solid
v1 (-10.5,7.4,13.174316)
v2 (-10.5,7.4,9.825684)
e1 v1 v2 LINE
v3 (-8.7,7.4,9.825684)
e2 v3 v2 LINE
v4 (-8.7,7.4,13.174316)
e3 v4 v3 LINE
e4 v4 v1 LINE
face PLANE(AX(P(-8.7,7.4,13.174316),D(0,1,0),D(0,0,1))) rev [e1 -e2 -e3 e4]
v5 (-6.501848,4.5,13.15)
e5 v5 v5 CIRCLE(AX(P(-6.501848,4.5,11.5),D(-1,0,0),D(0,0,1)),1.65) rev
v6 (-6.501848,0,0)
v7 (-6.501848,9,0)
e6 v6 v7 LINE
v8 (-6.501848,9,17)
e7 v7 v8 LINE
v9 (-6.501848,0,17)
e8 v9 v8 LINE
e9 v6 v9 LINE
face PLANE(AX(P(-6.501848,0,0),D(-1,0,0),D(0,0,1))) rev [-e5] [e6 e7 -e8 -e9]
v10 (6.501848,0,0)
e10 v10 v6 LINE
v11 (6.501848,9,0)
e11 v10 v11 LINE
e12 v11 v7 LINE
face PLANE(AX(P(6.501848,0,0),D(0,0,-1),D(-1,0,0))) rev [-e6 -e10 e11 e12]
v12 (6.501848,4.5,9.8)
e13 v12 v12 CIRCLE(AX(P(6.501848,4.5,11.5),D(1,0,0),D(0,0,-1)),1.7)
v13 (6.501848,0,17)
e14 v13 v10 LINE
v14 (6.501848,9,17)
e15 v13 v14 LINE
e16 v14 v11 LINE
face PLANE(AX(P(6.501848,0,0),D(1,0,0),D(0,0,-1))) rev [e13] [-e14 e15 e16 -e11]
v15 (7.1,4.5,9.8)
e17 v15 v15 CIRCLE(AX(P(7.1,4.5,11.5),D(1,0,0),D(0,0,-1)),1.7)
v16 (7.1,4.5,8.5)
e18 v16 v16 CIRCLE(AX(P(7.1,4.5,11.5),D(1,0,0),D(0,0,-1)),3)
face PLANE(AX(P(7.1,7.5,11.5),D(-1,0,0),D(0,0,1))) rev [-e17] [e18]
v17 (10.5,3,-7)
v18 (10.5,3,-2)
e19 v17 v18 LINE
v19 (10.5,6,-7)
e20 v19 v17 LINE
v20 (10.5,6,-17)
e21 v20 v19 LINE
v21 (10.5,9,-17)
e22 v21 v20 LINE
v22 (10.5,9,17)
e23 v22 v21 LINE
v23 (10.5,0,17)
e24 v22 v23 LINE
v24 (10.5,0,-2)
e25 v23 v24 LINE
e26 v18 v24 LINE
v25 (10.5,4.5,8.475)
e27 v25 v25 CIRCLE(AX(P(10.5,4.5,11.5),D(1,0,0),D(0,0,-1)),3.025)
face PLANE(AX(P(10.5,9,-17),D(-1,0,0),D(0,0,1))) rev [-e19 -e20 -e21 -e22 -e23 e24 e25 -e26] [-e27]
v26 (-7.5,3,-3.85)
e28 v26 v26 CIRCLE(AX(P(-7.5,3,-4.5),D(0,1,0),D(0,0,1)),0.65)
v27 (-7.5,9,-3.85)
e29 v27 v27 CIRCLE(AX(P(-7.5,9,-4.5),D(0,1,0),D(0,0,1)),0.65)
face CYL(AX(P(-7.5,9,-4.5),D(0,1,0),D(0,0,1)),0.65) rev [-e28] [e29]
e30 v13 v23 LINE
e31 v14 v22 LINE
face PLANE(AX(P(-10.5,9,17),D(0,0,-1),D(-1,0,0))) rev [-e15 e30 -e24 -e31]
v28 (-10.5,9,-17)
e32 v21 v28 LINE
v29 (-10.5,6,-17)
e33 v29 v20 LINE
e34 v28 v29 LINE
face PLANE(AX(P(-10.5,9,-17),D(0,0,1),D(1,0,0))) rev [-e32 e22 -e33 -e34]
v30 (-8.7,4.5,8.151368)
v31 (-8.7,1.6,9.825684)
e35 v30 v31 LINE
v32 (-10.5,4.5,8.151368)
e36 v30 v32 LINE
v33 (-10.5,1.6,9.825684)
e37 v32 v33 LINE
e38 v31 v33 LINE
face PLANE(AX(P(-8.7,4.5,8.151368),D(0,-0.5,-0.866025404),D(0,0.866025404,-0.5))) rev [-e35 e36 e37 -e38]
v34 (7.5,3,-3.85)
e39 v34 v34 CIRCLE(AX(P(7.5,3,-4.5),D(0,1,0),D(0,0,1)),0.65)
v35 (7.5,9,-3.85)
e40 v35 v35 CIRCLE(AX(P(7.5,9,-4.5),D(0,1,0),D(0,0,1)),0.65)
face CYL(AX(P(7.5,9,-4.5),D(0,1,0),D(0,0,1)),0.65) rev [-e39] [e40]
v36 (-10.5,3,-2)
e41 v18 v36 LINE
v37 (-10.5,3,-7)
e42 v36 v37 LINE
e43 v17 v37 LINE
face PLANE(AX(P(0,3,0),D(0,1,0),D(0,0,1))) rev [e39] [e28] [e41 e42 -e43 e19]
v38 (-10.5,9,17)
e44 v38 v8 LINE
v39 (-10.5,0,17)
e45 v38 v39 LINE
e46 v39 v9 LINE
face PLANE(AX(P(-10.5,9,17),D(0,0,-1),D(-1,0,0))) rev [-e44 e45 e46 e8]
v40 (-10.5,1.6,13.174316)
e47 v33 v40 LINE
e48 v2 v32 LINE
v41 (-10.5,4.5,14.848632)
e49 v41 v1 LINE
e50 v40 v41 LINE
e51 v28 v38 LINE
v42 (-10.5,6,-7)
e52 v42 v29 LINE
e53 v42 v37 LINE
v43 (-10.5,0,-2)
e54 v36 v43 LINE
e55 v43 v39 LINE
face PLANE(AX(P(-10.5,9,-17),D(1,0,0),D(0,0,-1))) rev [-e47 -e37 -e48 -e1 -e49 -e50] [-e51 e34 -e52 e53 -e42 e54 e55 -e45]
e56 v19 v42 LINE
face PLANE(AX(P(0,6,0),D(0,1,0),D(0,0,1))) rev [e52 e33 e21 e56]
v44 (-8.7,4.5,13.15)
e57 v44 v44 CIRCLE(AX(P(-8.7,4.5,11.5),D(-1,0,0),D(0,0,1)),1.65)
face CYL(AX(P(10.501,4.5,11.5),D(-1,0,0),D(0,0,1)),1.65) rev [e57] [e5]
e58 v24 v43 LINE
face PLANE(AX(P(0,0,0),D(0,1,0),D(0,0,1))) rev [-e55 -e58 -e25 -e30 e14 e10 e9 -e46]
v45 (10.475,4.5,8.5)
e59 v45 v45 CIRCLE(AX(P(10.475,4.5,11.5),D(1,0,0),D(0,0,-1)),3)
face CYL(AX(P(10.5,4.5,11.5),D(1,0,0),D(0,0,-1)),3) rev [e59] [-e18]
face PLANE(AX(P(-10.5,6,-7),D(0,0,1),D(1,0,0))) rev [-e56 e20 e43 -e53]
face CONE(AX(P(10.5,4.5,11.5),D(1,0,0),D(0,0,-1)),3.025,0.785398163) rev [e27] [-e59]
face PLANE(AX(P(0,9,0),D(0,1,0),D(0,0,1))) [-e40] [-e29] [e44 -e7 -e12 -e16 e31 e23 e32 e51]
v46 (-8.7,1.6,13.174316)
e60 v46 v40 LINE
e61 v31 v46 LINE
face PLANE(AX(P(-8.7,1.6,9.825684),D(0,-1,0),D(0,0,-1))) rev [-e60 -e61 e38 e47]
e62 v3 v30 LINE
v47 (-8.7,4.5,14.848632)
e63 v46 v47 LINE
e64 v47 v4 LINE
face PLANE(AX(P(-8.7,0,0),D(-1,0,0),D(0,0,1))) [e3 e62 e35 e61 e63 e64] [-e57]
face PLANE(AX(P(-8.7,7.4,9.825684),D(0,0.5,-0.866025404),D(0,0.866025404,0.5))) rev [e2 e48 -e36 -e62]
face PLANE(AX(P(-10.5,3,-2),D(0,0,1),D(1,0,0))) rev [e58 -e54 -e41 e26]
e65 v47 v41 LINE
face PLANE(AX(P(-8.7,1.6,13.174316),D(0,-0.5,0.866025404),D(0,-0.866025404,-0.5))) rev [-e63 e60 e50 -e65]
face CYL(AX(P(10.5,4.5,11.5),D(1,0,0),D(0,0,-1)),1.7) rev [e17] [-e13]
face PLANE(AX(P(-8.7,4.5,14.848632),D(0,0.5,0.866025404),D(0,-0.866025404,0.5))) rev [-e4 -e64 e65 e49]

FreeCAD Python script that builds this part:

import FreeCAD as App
import Part
import Sketcher
from FreeCAD import Vector
Q = App.Units.Quantity


def add_polygon(sketch, points):
    """Adds a closed chain of lines whose ends are joined by coincident constraints."""
    first, n = sketch.GeometryCount, len(points)
    for a, b in zip(points, points[1:] + points[:1]):
        sketch.addGeometry(Part.LineSegment(App.Vector(*a, 0), App.Vector(*b, 0)), False)
    for i in range(n):
        sketch.addConstraint(Sketcher.Constraint("Coincident", first + i, 2, first + (i + 1) % n, 1))

doc = App.newDocument("Part")
body = doc.addObject("PartDesign::Body", "Body")

# Sketch on XZ plane
sketch1 = body.newObject("Sketcher::SketchObject", "Sketch")
sketch1.AttachmentSupport = (doc.getObject("XZ_Plane"), [""])
sketch1.MapMode = "FlatFace"
add_polygon(sketch1, [(-10.5, -17), (-10.5, 17), (10.5, 17), (10.5, -17)])  # lines 0-3
sketch1.addConstraint(Sketcher.Constraint("Vertical", 0))
sketch1.addConstraint(Sketcher.Constraint("Horizontal", 1))
sketch1.addConstraint(Sketcher.Constraint("Vertical", 2))
sketch1.addConstraint(Sketcher.Constraint("Horizontal", 3))
sketch1.addConstraint(Sketcher.Constraint("Symmetric", 0, 2, 2, 2, -1, 1))
sketch1.addConstraint(Sketcher.Constraint("DistanceX", 1, 1, 1, 2, 21.0))
sketch1.addConstraint(Sketcher.Constraint("DistanceY", 0, 1, 0, 2, 34.0))
pad1 = body.newObject("PartDesign::Pad", "Pad")
pad1.Profile = sketch1
pad1.Length = 9
pad1.Reversed = True

# Sketch on XZ plane
sketch2 = body.newObject("Sketcher::SketchObject", "Sketch001")
sketch2.AttachmentSupport = (doc.getObject("XZ_Plane"), [""])
sketch2.MapMode = "FlatFace"
add_polygon(sketch2, [(-10.5, -7), (-10.5, -17), (10.5, -17), (10.5, -7)])  # lines 0-3
sketch2.addConstraint(Sketcher.Constraint("Vertical", 0))
sketch2.addConstraint(Sketcher.Constraint("Horizontal", 1))
sketch2.addConstraint(Sketcher.Constraint("Vertical", 2))
sketch2.addConstraint(Sketcher.Constraint("Horizontal", 3))
sketch2.addConstraint(Sketcher.Constraint("DistanceX", 1, 1, 1, 2, 21.0))
sketch2.addConstraint(Sketcher.Constraint("DistanceY", 0, 2, 0, 1, 10.0))
sketch2.addConstraint(Sketcher.Constraint("DistanceY", 0, 2, -1, 1, 17.0))
sketch2.addConstraint(Sketcher.Constraint("DistanceX", 0, 2, -1, 1, 10.5))
pocket1 = body.newObject("PartDesign::Pocket", "Pocket")
pocket1.Profile = sketch2
pocket1.Length = 6

# Sketch on XZ plane
sketch3 = body.newObject("Sketcher::SketchObject", "Sketch002")
sketch3.AttachmentSupport = (doc.getObject("XZ_Plane"), [""])
sketch3.MapMode = "FlatFace"
add_polygon(sketch3, [(-10.5, -2), (-10.5, -17), (10.5, -17), (10.5, -2)])  # lines 0-3
sketch3.addConstraint(Sketcher.Constraint("Vertical", 0))
sketch3.addConstraint(Sketcher.Constraint("Horizontal", 1))
sketch3.addConstraint(Sketcher.Constraint("Vertical", 2))
sketch3.addConstraint(Sketcher.Constraint("Horizontal", 3))
sketch3.addConstraint(Sketcher.Constraint("DistanceX", 1, 1, 1, 2, 21.0))
sketch3.addConstraint(Sketcher.Constraint("DistanceY", 0, 2, 0, 1, 15.0))
sketch3.addConstraint(Sketcher.Constraint("DistanceY", 0, 2, -1, 1, 17.0))
sketch3.addConstraint(Sketcher.Constraint("DistanceX", 0, 2, -1, 1, 10.5))
pocket2 = body.newObject("PartDesign::Pocket", "Pocket001")
pocket2.Profile = sketch3
pocket2.Length = 3

# Sketch on XZ plane
sketch4 = body.newObject("Sketcher::SketchObject", "Sketch003")
sketch4.AttachmentSupport = (doc.getObject("XZ_Plane"), [""])
sketch4.MapMode = "FlatFace"
sketch4.AttachmentOffset = App.Placement(Vector(0, 0, -9), App.Rotation())
add_polygon(sketch4, [(-6.501848, 0), (-6.501848, 17), (6.501848, 17), (6.501848, 0)])  # lines 0-3
sketch4.addConstraint(Sketcher.Constraint("Vertical", 0))
sketch4.addConstraint(Sketcher.Constraint("Horizontal", 1))
sketch4.addConstraint(Sketcher.Constraint("Vertical", 2))
sketch4.addConstraint(Sketcher.Constraint("Horizontal", 3))
sketch4.addConstraint(Sketcher.Constraint("Symmetric", 2, 2, 3, 2, -1, 1))
sketch4.addConstraint(Sketcher.Constraint("DistanceY", 0, 1, 0, 2, 17.0))
sketch4.addConstraint(Sketcher.Constraint("DistanceX", 1, 1, 1, 2, 13.003696))
pocket3 = body.newObject("PartDesign::Pocket", "Pocket002")
pocket3.Profile = sketch4
pocket3.Type = "ThroughAll"
pocket3.Reversed = True

# Sketch on XZ plane
sketch5 = body.newObject("Sketcher::SketchObject", "Sketch004")
sketch5.AttachmentSupport = (doc.getObject("XZ_Plane"), [""])
sketch5.MapMode = "FlatFace"
sketch5.AttachmentOffset = App.Placement(Vector(0, 0, -4.5), App.Rotation())
add_polygon(sketch5, [(6.501848, 11.5), (10.5, 11.5), (10.5, 8.475), (10.475, 8.5), (7.1, 8.5), (7.1, 9.8), (6.501848, 9.8)])  # lines 0-6
sketch5.addGeometry(Part.LineSegment(Vector(10.5, 11.5, 0), Vector(6.501848, 11.5, 0)), True)  # axis
sketch5.addConstraint(Sketcher.Constraint("Horizontal", 0))
sketch5.addConstraint(Sketcher.Constraint("Vertical", 1))
sketch5.addConstraint(Sketcher.Constraint("Horizontal", 3))
sketch5.addConstraint(Sketcher.Constraint("Vertical", 4))
sketch5.addConstraint(Sketcher.Constraint("Horizontal", 5))
sketch5.addConstraint(Sketcher.Constraint("Vertical", 6))
sketch5.addConstraint(Sketcher.Constraint("Horizontal", 7))
sketch5.addConstraint(Sketcher.Constraint("Coincident", 7, 1, 0, 2))
sketch5.addConstraint(Sketcher.Constraint("Vertical", 5, 2, 7, 2))
sketch5.addConstraint(Sketcher.Constraint("Angle", 2, Q("135 deg")))
sketch5.addConstraint(Sketcher.Constraint("DistanceY", 4, 1, 4, 2, 1.3))
sketch5.addConstraint(Sketcher.Constraint("DistanceY", 6, 1, 6, 2, 1.7))
sketch5.addConstraint(Sketcher.Constraint("DistanceX", -1, 1, 0, 2, 10.5))
sketch5.addConstraint(Sketcher.Constraint("DistanceY", -1, 1, 0, 2, 11.5))
sketch5.addConstraint(Sketcher.Constraint("DistanceX", -1, 1, 3, 2, 7.1))
sketch5.addConstraint(Sketcher.Constraint("DistanceX", 3, 2, 3, 1, 3.375))
sketch5.addConstraint(Sketcher.Constraint("DistanceX", 0, 1, 0, 2, 3.998152))
groove = body.newObject("PartDesign::Groove", "Groove")
groove.Profile = sketch5
groove.ReferenceAxis = (sketch5, ["Axis0"])
groove.Angle = 360

# Sketch on YZ plane
sketch6 = body.newObject("Sketcher::SketchObject", "Sketch005")
sketch6.AttachmentSupport = (doc.getObject("YZ_Plane"), [""])
sketch6.MapMode = "FlatFace"
sketch6.AttachmentOffset = App.Placement(Vector(0, 0, -10.5), App.Rotation())
add_polygon(sketch6, [(1.6, 13.174316), (4.5, 14.848632), (7.4, 13.174316), (7.4, 9.825684), (4.5, 8.151368), (1.6, 9.825684)])  # lines 0-5
sketch6.addConstraint(Sketcher.Constraint("Vertical", 2))
sketch6.addConstraint(Sketcher.Constraint("Vertical", 5))
sketch6.addConstraint(Sketcher.Constraint("Parallel", 0, 3))
sketch6.addConstraint(Sketcher.Constraint("Parallel", 1, 4))
sketch6.addConstraint(Sketcher.Constraint("Horizontal", 2, 2, 4, 2))
sketch6.addConstraint(Sketcher.Constraint("Horizontal", 1, 2, 5, 2))
sketch6.addConstraint(Sketcher.Constraint("Vertical", 0, 2, 3, 2))
sketch6.addConstraint(Sketcher.Constraint("Angle", 0, Q("30 deg")))
sketch6.addConstraint(Sketcher.Constraint("DistanceX", -1, 1, 0, 2, 4.5))
sketch6.addConstraint(Sketcher.Constraint("DistanceX", -1, 1, 1, 2, 7.4))
sketch6.addConstraint(Sketcher.Constraint("DistanceY", 2, 2, 2, 1, 3.348632))
sketch6.addConstraint(Sketcher.Constraint("DistanceY", -1, 1, 0, 2, 14.848632))
pocket4 = body.newObject("PartDesign::Pocket", "Pocket003")
pocket4.Profile = sketch6
pocket4.Length = 1.8
pocket4.Reversed = True

# Sketch on YZ plane
sketch7 = body.newObject("Sketcher::SketchObject", "Sketch006")
sketch7.AttachmentSupport = (doc.getObject("YZ_Plane"), [""])
sketch7.MapMode = "FlatFace"
sketch7.AttachmentOffset = App.Placement(Vector(0, 0, -8.7), App.Rotation())
sketch7.addGeometry(Part.Circle(Vector(4.5, 11.5, 0), Vector(0, 0, 1), 1.65), False)
sketch7.addConstraint(Sketcher.Constraint("Diameter", 0, 3.3))
sketch7.addConstraint(Sketcher.Constraint("DistanceX", -1, 1, 0, 3, 4.5))
sketch7.addConstraint(Sketcher.Constraint("DistanceY", -1, 1, 0, 3, 11.5))
pocket5 = body.newObject("PartDesign::Pocket", "Pocket004")
pocket5.Profile = sketch7
pocket5.Type = "UpToFirst"
pocket5.Reversed = True

# Sketch on XZ plane
sketch8 = body.newObject("Sketcher::SketchObject", "Sketch007")
sketch8.AttachmentSupport = (doc.getObject("XZ_Plane"), [""])
sketch8.MapMode = "FlatFace"
sketch8.AttachmentOffset = App.Placement(Vector(0, 0, -9), App.Rotation())
sketch8.addGeometry(Part.Circle(Vector(-7.5, -4.5, 0), Vector(0, 0, 1), 0.65), False)
sketch8.addGeometry(Part.Circle(Vector(7.5, -4.5, 0), Vector(0, 0, 1), 0.65), False)
sketch8.addConstraint(Sketcher.Constraint("Equal", 0, 1))
sketch8.addConstraint(Sketcher.Constraint("Symmetric", 0, 3, 1, 3, -2))
sketch8.addConstraint(Sketcher.Constraint("Diameter", 0, 1.3))
sketch8.addConstraint(Sketcher.Constraint("DistanceX", 0, 3, 1, 3, 15.0))
sketch8.addConstraint(Sketcher.Constraint("DistanceY", 0, 3, -1, 1, 4.5))
doc.recompute()
hole = body.newObject("PartDesign::Hole", "Hole")
hole.Profile = sketch8
hole.ThreadType = "None"
hole.Diameter = 1.3
hole.DepthType = "ThroughAll"
hole.Reversed = True

doc.recompute()
